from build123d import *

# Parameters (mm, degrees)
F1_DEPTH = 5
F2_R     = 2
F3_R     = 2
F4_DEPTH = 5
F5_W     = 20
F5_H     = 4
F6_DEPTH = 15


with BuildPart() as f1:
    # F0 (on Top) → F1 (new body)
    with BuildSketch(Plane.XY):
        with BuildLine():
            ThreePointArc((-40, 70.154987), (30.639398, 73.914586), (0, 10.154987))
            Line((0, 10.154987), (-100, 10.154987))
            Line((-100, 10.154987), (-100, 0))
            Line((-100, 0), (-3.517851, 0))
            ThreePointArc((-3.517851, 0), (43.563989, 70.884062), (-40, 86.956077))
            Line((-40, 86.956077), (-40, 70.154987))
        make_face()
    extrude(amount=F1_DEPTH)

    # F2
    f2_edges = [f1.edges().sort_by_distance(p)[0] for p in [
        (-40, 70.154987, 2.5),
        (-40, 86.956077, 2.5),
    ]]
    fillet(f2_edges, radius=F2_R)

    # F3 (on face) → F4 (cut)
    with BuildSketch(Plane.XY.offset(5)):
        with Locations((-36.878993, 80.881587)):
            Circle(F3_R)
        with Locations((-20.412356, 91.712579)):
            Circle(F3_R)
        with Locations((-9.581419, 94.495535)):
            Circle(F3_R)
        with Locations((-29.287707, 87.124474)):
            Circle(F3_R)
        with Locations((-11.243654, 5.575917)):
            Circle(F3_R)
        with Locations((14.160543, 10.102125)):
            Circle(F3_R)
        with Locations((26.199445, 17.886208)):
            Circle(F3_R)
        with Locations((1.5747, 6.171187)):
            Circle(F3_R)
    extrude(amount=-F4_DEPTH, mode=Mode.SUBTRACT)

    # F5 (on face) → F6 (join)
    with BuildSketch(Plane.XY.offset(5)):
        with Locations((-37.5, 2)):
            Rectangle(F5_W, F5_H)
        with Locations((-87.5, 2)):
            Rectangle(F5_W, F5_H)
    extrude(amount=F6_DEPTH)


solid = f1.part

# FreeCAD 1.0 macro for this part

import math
import FreeCAD as App
import Part
import Sketcher

V = App.Vector


def edges_at(feature, points):
    """Names of the edges that pass closest to the given points."""
    edges = feature.Shape.Edges
    near = lambda p: min(range(len(edges)), key=lambda i: edges[i].distToShape(Part.Vertex(*p))[0])
    return sorted({f"Edge{near(p) + 1}" for p in points})

doc = App.newDocument("Part")
body = doc.addObject("PartDesign::Body", "Body")

# Sketch on XY plane
sketch1 = body.newObject("Sketcher::SketchObject", "Sketch")
sketch1.AttachmentSupport = (doc.getObject("XY_Plane"), [""])
sketch1.MapMode = "FlatFace"
sketch1.addGeometry(Part.ArcOfCircle(Part.Circle(V(-4, 51, 0), V(0, 0, 1), 41), math.radians(-85), math.radians(152)), False)
sketch1.addGeometry(Part.LineSegment(V(0, 10, 0), V(-100, 10, 0)), False)
sketch1.addGeometry(Part.LineSegment(V(-100, 10, 0), V(-100, 0, 0)), False)
sketch1.addGeometry(Part.LineSegment(V(-100, 0, 0), V(-4, 0, 0)), False)
sketch1.addGeometry(Part.ArcOfCircle(Part.Circle(V(-4, 51, 0), V(0, 0, 1), 51), math.radians(-90), math.radians(135)), False)
sketch1.addGeometry(Part.LineSegment(V(-40, 87, 0), V(-40, 70, 0)), False)
sketch1.addConstraint(Sketcher.Constraint("Coincident", 0, 1, 1, 1))
sketch1.addConstraint(Sketcher.Constraint("Coincident", 1, 2, 2, 1))
sketch1.addConstraint(Sketcher.Constraint("Coincident", 2, 2, 3, 1))
sketch1.addConstraint(Sketcher.Constraint("Coincident", 3, 2, 4, 1))
sketch1.addConstraint(Sketcher.Constraint("Coincident", 4, 2, 5, 1))
sketch1.addConstraint(Sketcher.Constraint("Coincident", 5, 2, 0, 2))
sketch1.addConstraint(Sketcher.Constraint("Horizontal", 1))
sketch1.addConstraint(Sketcher.Constraint("Vertical", 2))
sketch1.addConstraint(Sketcher.Constraint("Horizontal", 3))
sketch1.addConstraint(Sketcher.Constraint("Vertical", 5))
sketch1.addConstraint(Sketcher.Constraint("Coincident", 4, 3, 0, 3))
sketch1.addConstraint(Sketcher.Constraint("PointOnObject", 0, 1, -2))
sketch1.addConstraint(Sketcher.Constraint("PointOnObject", 2, 2, -1))
sketch1.addConstraint(Sketcher.Constraint("DistanceX", 1, 2, 1, 1, 100.0))
sketch1.addConstraint(Sketcher.Constraint("DistanceX", 4, 2, -1, 1, 40.0))
sketch1.addConstraint(Sketcher.Constraint("DistanceY", 0, 1, 5, 2, 60.0))
sketch1.addConstraint(Sketcher.Constraint("Radius", 0, 41.110568))
sketch1.addConstraint(Sketcher.Constraint("Radius", 4, 51.110569))
sketch1.addConstraint(Sketcher.Constraint("DistanceX", 3, 1, 3, 2, 96.482149))
pad1 = body.newObject("PartDesign::Pad", "Pad")
pad1.Profile = sketch1
pad1.Length = 5
doc.recompute()

fillet = body.newObject("PartDesign::Fillet", "Fillet")
fillet.Base = (pad1, edges_at(pad1, [(-40, 70.155, 2.5), (-40, 86.956, 2.5)]))
fillet.Radius = 2

# Sketch on XY plane
sketch2 = body.newObject("Sketcher::SketchObject", "Sketch001")
sketch2.AttachmentSupport = (doc.getObject("XY_Plane"), [""])
sketch2.MapMode = "FlatFace"
sketch2.AttachmentOffset = App.Placement(V(0, 0, 5), App.Rotation())
sketch2.addGeometry(Part.Circle(V(-36.9, 80.9, 0), V(0, 0, 1), 2), False)
sketch2.addGeometry(Part.Circle(V(-20.4, 91.7, 0), V(0, 0, 1), 2), False)
sketch2.addGeometry(Part.Circle(V(-9.6, 94.5, 0), V(0, 0, 1), 2), False)
sketch2.addGeometry(Part.Circle(V(-29.3, 87.1, 0), V(0, 0, 1), 2), False)
sketch2.addGeometry(Part.Circle(V(-11.2, 5.6, 0), V(0, 0, 1), 2), False)
sketch2.addGeometry(Part.Circle(V(14.2, 10.1, 0), V(0, 0, 1), 2), False)
sketch2.addGeometry(Part.Circle(V(26.2, 17.9, 0), V(0, 0, 1), 2), False)
sketch2.addGeometry(Part.Circle(V(1.6, 6.2, 0), V(0, 0, 1), 2), False)
sketch2.addConstraint(Sketcher.Constraint("Equal", 0, 1))
sketch2.addConstraint(Sketcher.Constraint("Equal", 1, 2))
sketch2.addConstraint(Sketcher.Constraint("Equal", 2, 3))
sketch2.addConstraint(Sketcher.Constraint("Equal", 3, 4))
sketch2.addConstraint(Sketcher.Constraint("Equal", 4, 5))
sketch2.addConstraint(Sketcher.Constraint("Equal", 5, 6))
sketch2.addConstraint(Sketcher.Constraint("Equal", 6, 7))
sketch2.addConstraint(Sketcher.Constraint("Diameter", 0, 4.0))
sketch2.addConstraint(Sketcher.Constraint("DistanceX", -1, 1, 7, 3, 1.5747))
sketch2.addConstraint(Sketcher.Constraint("DistanceX", 1, 3, 5, 3, 34.572899))
sketch2.addConstraint(Sketcher.Constraint("DistanceX", 4, 3, 6, 3, 37.443099))
sketch2.addConstraint(Sketcher.Constraint("DistanceX", 1, 3, 6, 3, 46.611801))
sketch2.addConstraint(Sketcher.Constraint("DistanceY", 7, 3, 0, 3, 74.7104))
sketch2.addConstraint(Sketcher.Constraint("DistanceY", -1, 1, 1, 3, 91.712579))
sketch2.addConstraint(Sketcher.Constraint("DistanceX", 2, 3, -1, 1, 9.581419))
sketch2.addConstraint(Sketcher.Constraint("DistanceY", -1, 1, 6, 3, 17.886208))
sketch2.addConstraint(Sketcher.Constraint("DistanceY", 0, 3, 2, 3, 13.613948))
sketch2.addConstraint(Sketcher.Constraint("DistanceX", 3, 3, 1, 3, 8.875351))
sketch2.addConstraint(Sketcher.Constraint("DistanceX", 3, 3, 2, 3, 19.706288))
sketch2.addConstraint(Sketcher.Constraint("DistanceY", 3, 3, 2, 3, 7.371061))
sketch2.addConstraint(Sketcher.Constraint("DistanceX", 0, 3, 4, 3, 25.635339))
sketch2.addConstraint(Sketcher.Constraint("DistanceY", 4, 3, 0, 3, 75.30567))
sketch2.addConstraint(Sketcher.Constraint("DistanceY", 4, 3, 1, 3, 86.136662))
sketch2.addConstraint(Sketcher.Constraint("DistanceY", 5, 3, 0, 3, 70.779462))
pocket1 = body.newObject("PartDesign::Pocket", "Pocket")
pocket1.Profile = sketch2
pocket1.Length = 5

# Sketch on XY plane
sketch3 = body.newObject("Sketcher::SketchObject", "Sketch002")
sketch3.AttachmentSupport = (doc.getObject("XY_Plane"), [""])
sketch3.MapMode = "FlatFace"
sketch3.AttachmentOffset = App.Placement(V(0, 0, 5), App.Rotation())
sketch3.addGeometry(Part.LineSegment(V(-47.5, 4, 0), V(-47.5, 0, 0)), False)
sketch3.addGeometry(Part.LineSegment(V(-47.5, 0, 0), V(-27.5, 0, 0)), False)
sketch3.addGeometry(Part.LineSegment(V(-27.5, 0, 0), V(-27.5, 4, 0)), False)
sketch3.addGeometry(Part.LineSegment(V(-27.5, 4, 0), V(-47.5, 4, 0)), False)
sketch3.addGeometry(Part.LineSegment(V(-97.5, 4, 0), V(-97.5, 0, 0)), False)
sketch3.addGeometry(Part.LineSegment(V(-97.5, 0, 0), V(-77.5, 0, 0)), False)
sketch3.addGeometry(Part.LineSegment(V(-77.5, 0, 0), V(-77.5, 4, 0)), False)
sketch3.addGeometry(Part.LineSegment(V(-77.5, 4, 0), V(-97.5, 4, 0)), False)
sketch3.addConstraint(Sketcher.Constraint("Coincident", 0, 2, 1, 1))
sketch3.addConstraint(Sketcher.Constraint("Coincident", 1, 2, 2, 1))
sketch3.addConstraint(Sketcher.Constraint("Coincident", 2, 2, 3, 1))
sketch3.addConstraint(Sketcher.Constraint("Coincident", 3, 2, 0, 1))
sketch3.addConstraint(Sketcher.Constraint("Coincident", 4, 2, 5, 1))
sketch3.addConstraint(Sketcher.Constraint("Coincident", 5, 2, 6, 1))
sketch3.addConstraint(Sketcher.Constraint("Coincident", 6, 2, 7, 1))
sketch3.addConstraint(Sketcher.Constraint("Coincident", 7, 2, 4, 1))
sketch3.addConstraint(Sketcher.Constraint("Vertical", 0))
sketch3.addConstraint(Sketcher.Constraint("Horizontal", 1))
sketch3.addConstraint(Sketcher.Constraint("Vertical", 2))
sketch3.addConstraint(Sketcher.Constraint("Horizontal", 3))
sketch3.addConstraint(Sketcher.Constraint("Vertical", 4))
sketch3.addConstraint(Sketcher.Constraint("Horizontal", 5))
sketch3.addConstraint(Sketcher.Constraint("Vertical", 6))
sketch3.addConstraint(Sketcher.Constraint("Horizontal", 7))
sketch3.addConstraint(Sketcher.Constraint("PointOnObject", 0, 2, -1))
sketch3.addConstraint(Sketcher.Constraint("PointOnObject", 4, 2, -1))
sketch3.addConstraint(Sketcher.Constraint("Horizontal", 3, 2, 6, 2))
sketch3.addConstraint(Sketcher.Constraint("Equal", 3, 5))
sketch3.addConstraint(Sketcher.Constraint("DistanceX", 1, 1, 1, 2, 20.0))
sketch3.addConstraint(Sketcher.Constraint("DistanceY", 0, 2, 0, 1, 4.0))
sketch3.addConstraint(Sketcher.Constraint("DistanceX", 4, 2, 0, 2, 50.0))
sketch3.addConstraint(Sketcher.Constraint("DistanceX", 0, 2, -1, 1, 47.5))
pad2 = body.newObject("PartDesign::Pad", "Pad001")
pad2.Profile = sketch3
pad2.Length = 15

doc.recompute()
